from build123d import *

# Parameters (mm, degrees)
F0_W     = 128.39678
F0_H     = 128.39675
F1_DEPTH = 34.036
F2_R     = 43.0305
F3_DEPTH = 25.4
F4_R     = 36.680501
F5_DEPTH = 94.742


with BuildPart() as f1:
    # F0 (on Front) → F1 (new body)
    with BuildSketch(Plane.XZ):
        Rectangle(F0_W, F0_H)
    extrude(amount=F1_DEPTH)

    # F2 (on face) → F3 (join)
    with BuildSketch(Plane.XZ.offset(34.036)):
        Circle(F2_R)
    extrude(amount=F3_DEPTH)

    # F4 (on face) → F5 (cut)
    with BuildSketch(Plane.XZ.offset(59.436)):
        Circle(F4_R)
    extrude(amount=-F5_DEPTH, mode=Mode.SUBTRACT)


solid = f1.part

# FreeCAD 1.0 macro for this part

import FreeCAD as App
import Part
import Sketcher
from FreeCAD import Vector

doc = App.newDocument("Part")
params = doc.addObject("Spreadsheet::Sheet", "Params")
for row, (alias, value) in enumerate([
    ("pad1_length", "1.34 in"),
    ("pad2_length", "1 in"),
    ("pocket1_length", "3.73 in"),
], start=1):
    params.set(f"A{row}", alias)
    params.set(f"B{row}", "=" + value)
    params.setAlias(f"B{row}", alias)

body = doc.addObject("PartDesign::Body", "Body")

# Sketch on XZ plane
sketch1 = body.newObject("Sketcher::SketchObject", "Sketch")
sketch1.AttachmentSupport = (doc.getObject("XZ_Plane"), [""])
sketch1.MapMode = "FlatFace"
sketch1.addGeometry([
    Part.LineSegment(Vector(-64, 64, 0), Vector(-64, -64, 0)),
    Part.LineSegment(Vector(-64, -64, 0), Vector(64, -64, 0)),
    Part.LineSegment(Vector(64, -64, 0), Vector(64, 64, 0)),
    Part.LineSegment(Vector(64, 64, 0), Vector(-64, 64, 0)),
], False)
sketch1.addConstraint([
    Sketcher.Constraint("Coincident", 0, 2, 1, 1),
    Sketcher.Constraint("Coincident", 1, 2, 2, 1),
    Sketcher.Constraint("Coincident", 2, 2, 3, 1),
    Sketcher.Constraint("Coincident", 3, 2, 0, 1),
    Sketcher.Constraint("Vertical", 0),
    Sketcher.Constraint("Horizontal", 1),
    Sketcher.Constraint("Vertical", 2),
    Sketcher.Constraint("Horizontal", 3),
    Sketcher.Constraint("Symmetric", 0, 2, 2, 2, -1, 1),
    Sketcher.Constraint("DistanceX", 1, 1, 1, 2, 128.39678),
    Sketcher.Constraint("DistanceY", 0, 2, 0, 1, 128.39675),
])
pad1 = body.newObject("PartDesign::Pad", "Pad")
pad1.Profile = sketch1
pad1.setExpression("Length", "Params.pad1_length")

# Sketch on XZ plane
sketch2 = body.newObject("Sketcher::SketchObject", "Sketch001")
sketch2.AttachmentSupport = (doc.getObject("XZ_Plane"), [""])
sketch2.MapMode = "FlatFace"
sketch2.AttachmentOffset = App.Placement(Vector(0, 0, 1.34 * 25.4), App.Rotation())
sketch2.addGeometry(Part.Circle(Vector(0, 0, 0), Vector(0, 0, 1), 43), False)
sketch2.addConstraint([
    Sketcher.Constraint("Coincident", 0, 3, -1, 1),
    Sketcher.Constraint("Diameter", 0, 86.061),
])
pad2 = body.newObject("PartDesign::Pad", "Pad001")
pad2.Profile = sketch2
pad2.setExpression("Length", "Params.pad2_length")

# Sketch on XZ plane
sketch3 = body.newObject("Sketcher::SketchObject", "Sketch002")
sketch3.AttachmentSupport = (doc.getObject("XZ_Plane"), [""])
sketch3.MapMode = "FlatFace"
sketch3.AttachmentOffset = App.Placement(Vector(0, 0, 2.34 * 25.4), App.Rotation())
sketch3.addGeometry(Part.Circle(Vector(0, 0, 0), Vector(0, 0, 1), 37), False)
sketch3.addConstraint([
    Sketcher.Constraint("Coincident", 0, 3, -1, 1),
    Sketcher.Constraint("Diameter", 0, 73.361002),
])
pocket1 = body.newObject("PartDesign::Pocket", "Pocket")
pocket1.Profile = sketch3
pocket1.setExpression("Length", "Params.pocket1_length")

doc.recompute()
